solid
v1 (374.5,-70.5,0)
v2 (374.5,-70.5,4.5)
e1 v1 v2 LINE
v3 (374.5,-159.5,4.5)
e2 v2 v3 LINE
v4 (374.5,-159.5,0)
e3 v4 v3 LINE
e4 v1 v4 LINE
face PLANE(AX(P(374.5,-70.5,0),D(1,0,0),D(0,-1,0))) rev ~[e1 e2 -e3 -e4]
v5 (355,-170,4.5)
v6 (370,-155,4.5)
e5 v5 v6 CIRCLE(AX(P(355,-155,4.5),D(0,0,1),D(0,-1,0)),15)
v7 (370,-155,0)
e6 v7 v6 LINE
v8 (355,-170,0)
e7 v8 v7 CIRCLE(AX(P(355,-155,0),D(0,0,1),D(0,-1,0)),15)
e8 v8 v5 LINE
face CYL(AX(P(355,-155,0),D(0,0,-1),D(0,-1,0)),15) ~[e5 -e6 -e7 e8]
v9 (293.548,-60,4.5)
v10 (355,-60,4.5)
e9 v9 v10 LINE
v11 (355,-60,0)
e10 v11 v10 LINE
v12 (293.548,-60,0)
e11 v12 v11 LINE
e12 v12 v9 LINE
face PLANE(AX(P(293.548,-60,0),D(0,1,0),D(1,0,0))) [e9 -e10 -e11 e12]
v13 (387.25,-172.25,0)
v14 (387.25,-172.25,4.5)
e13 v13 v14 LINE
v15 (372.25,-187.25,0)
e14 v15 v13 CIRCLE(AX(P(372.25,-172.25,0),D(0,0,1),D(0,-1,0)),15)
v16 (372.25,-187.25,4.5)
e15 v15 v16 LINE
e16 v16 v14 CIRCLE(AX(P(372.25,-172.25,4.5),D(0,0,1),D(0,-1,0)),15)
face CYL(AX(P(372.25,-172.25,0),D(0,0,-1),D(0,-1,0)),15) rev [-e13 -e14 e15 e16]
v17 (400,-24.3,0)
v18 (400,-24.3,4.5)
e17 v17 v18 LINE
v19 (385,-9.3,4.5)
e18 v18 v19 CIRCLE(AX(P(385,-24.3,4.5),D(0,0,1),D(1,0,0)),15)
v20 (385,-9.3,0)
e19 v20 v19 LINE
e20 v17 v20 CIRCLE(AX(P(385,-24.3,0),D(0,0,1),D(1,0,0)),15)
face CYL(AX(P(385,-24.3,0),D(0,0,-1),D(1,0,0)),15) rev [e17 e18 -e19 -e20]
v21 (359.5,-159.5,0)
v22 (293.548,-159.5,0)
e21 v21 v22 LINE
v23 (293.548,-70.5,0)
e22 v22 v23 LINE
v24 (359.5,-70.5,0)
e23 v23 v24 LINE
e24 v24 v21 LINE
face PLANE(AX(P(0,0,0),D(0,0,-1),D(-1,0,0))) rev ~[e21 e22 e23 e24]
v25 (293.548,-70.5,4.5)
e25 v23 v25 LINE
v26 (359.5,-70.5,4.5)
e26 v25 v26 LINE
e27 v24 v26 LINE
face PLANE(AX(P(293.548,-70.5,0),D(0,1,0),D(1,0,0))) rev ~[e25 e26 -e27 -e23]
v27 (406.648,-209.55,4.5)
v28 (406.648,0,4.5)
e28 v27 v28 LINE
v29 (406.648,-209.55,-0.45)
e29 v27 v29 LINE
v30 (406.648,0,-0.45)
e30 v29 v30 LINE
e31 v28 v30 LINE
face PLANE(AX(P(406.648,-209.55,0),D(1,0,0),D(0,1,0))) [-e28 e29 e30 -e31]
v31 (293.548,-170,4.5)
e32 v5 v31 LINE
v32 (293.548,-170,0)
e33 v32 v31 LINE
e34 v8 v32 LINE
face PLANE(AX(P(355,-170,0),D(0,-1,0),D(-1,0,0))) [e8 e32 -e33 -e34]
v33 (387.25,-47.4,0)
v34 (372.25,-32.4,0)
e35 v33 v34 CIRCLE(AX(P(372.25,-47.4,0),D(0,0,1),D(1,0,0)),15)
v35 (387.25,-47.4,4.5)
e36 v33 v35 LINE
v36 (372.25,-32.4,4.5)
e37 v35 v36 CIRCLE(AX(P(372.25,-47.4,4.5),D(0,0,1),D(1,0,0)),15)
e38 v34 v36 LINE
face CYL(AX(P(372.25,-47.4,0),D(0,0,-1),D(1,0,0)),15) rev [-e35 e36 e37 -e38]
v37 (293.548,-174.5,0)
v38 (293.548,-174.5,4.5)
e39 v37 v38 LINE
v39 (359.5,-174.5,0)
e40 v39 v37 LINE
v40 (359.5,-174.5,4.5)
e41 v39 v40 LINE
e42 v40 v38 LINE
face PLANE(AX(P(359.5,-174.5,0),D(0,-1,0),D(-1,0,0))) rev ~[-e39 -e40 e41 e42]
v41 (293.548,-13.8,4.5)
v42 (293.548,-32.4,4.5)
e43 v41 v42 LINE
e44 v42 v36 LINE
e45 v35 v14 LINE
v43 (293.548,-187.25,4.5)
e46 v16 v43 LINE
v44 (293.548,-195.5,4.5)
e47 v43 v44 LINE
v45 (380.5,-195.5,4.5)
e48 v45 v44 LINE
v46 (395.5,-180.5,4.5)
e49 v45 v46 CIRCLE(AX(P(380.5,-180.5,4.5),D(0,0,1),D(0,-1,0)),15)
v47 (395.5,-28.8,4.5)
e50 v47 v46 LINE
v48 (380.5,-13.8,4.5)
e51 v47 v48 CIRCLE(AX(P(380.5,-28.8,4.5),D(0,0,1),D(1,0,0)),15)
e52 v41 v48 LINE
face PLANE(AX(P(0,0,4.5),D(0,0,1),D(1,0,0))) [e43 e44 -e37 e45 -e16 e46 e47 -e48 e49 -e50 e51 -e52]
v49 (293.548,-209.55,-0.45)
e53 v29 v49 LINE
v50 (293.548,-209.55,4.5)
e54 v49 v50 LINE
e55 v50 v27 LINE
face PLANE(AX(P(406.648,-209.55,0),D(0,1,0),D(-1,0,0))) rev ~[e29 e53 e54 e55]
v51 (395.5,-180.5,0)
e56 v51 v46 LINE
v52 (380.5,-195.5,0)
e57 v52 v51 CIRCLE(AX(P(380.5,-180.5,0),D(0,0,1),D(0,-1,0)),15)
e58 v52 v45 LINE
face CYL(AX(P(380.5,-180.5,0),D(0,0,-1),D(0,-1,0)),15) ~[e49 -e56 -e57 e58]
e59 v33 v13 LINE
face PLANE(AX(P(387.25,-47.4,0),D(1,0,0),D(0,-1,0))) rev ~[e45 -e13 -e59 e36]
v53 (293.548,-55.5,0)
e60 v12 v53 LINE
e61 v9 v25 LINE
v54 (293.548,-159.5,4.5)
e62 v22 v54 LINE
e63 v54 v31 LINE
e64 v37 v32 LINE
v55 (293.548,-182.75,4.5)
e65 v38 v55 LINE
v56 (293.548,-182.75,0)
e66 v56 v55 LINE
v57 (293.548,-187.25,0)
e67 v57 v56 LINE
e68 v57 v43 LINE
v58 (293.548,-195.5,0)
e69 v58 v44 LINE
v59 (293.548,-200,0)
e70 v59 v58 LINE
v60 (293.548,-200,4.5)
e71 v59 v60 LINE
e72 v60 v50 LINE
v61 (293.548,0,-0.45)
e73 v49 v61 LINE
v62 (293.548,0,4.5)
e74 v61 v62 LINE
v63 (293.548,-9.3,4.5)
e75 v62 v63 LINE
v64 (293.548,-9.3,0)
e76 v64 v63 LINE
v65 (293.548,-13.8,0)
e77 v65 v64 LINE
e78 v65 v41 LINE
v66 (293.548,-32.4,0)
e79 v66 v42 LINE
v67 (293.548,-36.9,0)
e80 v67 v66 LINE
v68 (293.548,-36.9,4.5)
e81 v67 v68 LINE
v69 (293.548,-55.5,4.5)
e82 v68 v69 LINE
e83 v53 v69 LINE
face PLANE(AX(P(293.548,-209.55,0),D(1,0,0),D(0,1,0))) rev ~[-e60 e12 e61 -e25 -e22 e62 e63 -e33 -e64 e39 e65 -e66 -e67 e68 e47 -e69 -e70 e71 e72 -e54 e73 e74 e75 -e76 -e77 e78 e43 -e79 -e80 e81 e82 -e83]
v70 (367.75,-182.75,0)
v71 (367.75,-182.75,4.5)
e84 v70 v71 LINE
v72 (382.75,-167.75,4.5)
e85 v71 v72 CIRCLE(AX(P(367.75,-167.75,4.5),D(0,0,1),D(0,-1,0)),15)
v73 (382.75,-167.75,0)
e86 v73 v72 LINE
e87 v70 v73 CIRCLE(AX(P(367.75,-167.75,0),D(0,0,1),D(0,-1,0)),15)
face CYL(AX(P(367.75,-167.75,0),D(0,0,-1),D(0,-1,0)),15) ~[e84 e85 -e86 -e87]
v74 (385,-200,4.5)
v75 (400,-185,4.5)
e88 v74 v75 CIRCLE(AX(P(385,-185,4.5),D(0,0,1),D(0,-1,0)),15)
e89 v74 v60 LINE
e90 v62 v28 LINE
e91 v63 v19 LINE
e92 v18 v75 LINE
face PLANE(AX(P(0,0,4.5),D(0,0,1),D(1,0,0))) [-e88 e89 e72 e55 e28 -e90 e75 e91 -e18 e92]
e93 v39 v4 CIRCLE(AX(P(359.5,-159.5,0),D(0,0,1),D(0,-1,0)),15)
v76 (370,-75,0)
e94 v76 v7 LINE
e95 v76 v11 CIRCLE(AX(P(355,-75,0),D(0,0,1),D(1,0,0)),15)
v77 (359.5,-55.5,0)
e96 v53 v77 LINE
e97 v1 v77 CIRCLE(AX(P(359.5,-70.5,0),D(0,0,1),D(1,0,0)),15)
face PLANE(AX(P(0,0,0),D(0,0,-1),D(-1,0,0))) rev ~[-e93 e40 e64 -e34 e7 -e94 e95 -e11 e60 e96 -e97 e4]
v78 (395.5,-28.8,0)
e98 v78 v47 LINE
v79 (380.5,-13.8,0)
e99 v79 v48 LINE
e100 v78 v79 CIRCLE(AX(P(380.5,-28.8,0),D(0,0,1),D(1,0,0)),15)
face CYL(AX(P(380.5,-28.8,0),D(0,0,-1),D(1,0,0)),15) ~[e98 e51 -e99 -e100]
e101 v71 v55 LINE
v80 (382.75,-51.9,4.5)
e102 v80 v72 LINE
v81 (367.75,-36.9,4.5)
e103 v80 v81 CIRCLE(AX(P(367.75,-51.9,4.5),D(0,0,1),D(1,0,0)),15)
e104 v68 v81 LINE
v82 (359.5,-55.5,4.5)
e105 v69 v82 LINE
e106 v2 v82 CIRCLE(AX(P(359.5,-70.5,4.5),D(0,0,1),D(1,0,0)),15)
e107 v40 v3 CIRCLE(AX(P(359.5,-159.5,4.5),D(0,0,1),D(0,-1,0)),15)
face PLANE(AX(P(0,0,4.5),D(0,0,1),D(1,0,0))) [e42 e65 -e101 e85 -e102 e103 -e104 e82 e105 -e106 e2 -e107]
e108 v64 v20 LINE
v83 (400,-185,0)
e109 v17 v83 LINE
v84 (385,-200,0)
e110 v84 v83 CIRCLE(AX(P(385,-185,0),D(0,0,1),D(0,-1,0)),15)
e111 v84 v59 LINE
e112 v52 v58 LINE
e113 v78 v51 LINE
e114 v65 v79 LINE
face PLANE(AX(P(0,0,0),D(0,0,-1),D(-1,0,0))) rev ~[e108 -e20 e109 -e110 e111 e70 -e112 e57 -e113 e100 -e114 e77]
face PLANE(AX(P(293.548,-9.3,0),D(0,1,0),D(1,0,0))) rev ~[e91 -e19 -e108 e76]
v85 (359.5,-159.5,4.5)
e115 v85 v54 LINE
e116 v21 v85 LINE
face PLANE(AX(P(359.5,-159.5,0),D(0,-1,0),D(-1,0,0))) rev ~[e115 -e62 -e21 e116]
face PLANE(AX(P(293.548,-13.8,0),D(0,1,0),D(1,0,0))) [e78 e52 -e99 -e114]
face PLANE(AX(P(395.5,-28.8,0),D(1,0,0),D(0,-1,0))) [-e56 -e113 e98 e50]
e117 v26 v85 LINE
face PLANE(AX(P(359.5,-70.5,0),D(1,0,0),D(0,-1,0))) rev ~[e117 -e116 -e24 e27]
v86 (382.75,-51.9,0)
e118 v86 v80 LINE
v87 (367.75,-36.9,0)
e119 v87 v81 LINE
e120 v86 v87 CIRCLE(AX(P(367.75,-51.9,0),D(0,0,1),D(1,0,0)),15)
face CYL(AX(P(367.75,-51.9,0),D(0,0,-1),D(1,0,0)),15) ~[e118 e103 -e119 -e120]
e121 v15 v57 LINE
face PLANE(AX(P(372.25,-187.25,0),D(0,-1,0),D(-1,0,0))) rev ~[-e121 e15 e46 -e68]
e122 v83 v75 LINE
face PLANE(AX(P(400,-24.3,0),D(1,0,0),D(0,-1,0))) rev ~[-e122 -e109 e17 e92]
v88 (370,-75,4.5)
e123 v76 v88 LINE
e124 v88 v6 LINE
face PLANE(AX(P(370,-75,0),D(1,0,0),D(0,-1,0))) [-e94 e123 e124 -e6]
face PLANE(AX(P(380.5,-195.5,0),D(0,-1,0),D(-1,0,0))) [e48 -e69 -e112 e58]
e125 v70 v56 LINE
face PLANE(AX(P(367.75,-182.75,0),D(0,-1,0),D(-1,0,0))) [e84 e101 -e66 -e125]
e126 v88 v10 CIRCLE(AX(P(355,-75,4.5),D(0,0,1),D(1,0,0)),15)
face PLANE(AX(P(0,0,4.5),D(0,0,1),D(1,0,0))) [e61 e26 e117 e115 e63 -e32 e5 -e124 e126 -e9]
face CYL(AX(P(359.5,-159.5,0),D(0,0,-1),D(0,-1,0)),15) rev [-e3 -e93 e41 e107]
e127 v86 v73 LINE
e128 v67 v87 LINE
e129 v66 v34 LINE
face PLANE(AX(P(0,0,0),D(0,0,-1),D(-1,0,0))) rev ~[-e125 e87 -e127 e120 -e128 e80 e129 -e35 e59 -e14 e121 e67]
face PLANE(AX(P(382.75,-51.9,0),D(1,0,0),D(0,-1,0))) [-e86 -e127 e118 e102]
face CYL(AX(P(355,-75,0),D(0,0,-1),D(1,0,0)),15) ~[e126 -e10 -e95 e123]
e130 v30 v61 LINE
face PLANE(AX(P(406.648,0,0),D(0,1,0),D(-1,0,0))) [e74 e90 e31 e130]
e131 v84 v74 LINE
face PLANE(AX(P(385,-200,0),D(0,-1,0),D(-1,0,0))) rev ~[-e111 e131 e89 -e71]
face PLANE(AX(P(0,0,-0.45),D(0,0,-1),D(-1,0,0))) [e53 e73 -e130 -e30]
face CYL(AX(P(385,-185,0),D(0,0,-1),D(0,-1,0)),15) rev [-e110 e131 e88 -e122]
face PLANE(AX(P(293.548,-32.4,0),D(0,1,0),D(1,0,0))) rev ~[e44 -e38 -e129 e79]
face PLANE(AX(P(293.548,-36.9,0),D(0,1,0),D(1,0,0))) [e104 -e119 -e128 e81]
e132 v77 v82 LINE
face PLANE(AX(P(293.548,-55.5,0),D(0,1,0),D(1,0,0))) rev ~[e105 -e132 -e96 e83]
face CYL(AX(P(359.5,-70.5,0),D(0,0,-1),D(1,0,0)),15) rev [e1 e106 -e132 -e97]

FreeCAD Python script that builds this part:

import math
import FreeCAD as App
import Part
import Sketcher

V = App.Vector
Q = App.Units.Quantity


def add_polygon(sketch, points):
    """Adds a closed chain of lines whose ends are joined by coincident constraints."""
    first, n = sketch.GeometryCount, len(points)
    for a, b in zip(points, points[1:] + points[:1]):
        sketch.addGeometry(Part.LineSegment(App.Vector(*a, 0), App.Vector(*b, 0)), False)
    for i in range(n):
        sketch.addConstraint(Sketcher.Constraint("Coincident", first + i, 2, first + (i + 1) % n, 1))

doc = App.newDocument("Part")
body = doc.addObject("PartDesign::Body", "Body")
body.AllowCompound = True

sketch1 = body.newObject("Sketcher::SketchObject", "Sketch")
sketch1.AttachmentSupport = (doc.getObject("XY_Plane"), [""])
sketch1.MapMode = "FlatFace"
sketch1.addGeometry([
    Part.LineSegment(V(294, 0, 0), V(294, -9, 0)),
    Part.LineSegment(V(294, -9, 0), V(385, -9, 0)),
    Part.ArcOfCircle(Part.Circle(V(385, -24, 0), V(0, 0, 1), 15), math.radians(0), math.radians(90)),
    Part.LineSegment(V(400, -24, 0), V(400, -185, 0)),
    Part.ArcOfCircle(Part.Circle(V(385, -185, 0), V(0, 0, 1), 15), math.radians(-90), math.radians(0)),
    Part.LineSegment(V(385, -200, 0), V(294, -200, 0)),
    Part.LineSegment(V(294, -200, 0), V(294, -210, 0)),
    Part.LineSegment(V(294, -210, 0), V(407, -210, 0)),
    Part.LineSegment(V(407, -210, 0), V(407, 0, 0)),
    Part.LineSegment(V(407, 0, 0), V(294, 0, 0)),
    Part.LineSegment(V(380, -14, 0), V(294, -14, 0)),
    Part.LineSegment(V(294, -14, 0), V(294, -32, 0)),
    Part.LineSegment(V(294, -32, 0), V(372, -32, 0)),
    Part.ArcOfCircle(Part.Circle(V(372, -47, 0), V(0, 0, 1), 15), math.radians(0), math.radians(90)),
    Part.LineSegment(V(387, -47, 0), V(387, -172, 0)),
    Part.ArcOfCircle(Part.Circle(V(372, -172, 0), V(0, 0, 1), 15), math.radians(-90), math.radians(0)),
    Part.LineSegment(V(372, -187, 0), V(294, -187, 0)),
    Part.LineSegment(V(294, -187, 0), V(294, -196, 0)),
    Part.LineSegment(V(294, -196, 0), V(380, -196, 0)),
    Part.ArcOfCircle(Part.Circle(V(380, -180, 0), V(0, 0, 1), 15), math.radians(-90), math.radians(0)),
    Part.LineSegment(V(396, -180, 0), V(396, -29, 0)),
    Part.ArcOfCircle(Part.Circle(V(380, -29, 0), V(0, 0, 1), 15), math.radians(0), math.radians(90)),
    Part.LineSegment(V(368, -37, 0), V(294, -37, 0)),
    Part.LineSegment(V(294, -37, 0), V(294, -56, 0)),
    Part.LineSegment(V(294, -56, 0), V(360, -56, 0)),
    Part.ArcOfCircle(Part.Circle(V(360, -70, 0), V(0, 0, 1), 15), math.radians(0), math.radians(90)),
    Part.LineSegment(V(374, -70, 0), V(374, -160, 0)),
    Part.ArcOfCircle(Part.Circle(V(360, -160, 0), V(0, 0, 1), 15), math.radians(-90), math.radians(0)),
    Part.LineSegment(V(360, -174, 0), V(294, -174, 0)),
    Part.LineSegment(V(294, -174, 0), V(294, -183, 0)),
    Part.LineSegment(V(294, -183, 0), V(368, -183, 0)),
    Part.ArcOfCircle(Part.Circle(V(368, -168, 0), V(0, 0, 1), 15), math.radians(-90), math.radians(0)),
    Part.LineSegment(V(383, -168, 0), V(383, -52, 0)),
    Part.ArcOfCircle(Part.Circle(V(368, -52, 0), V(0, 0, 1), 15), math.radians(0), math.radians(90)),
    Part.LineSegment(V(355, -60, 0), V(294, -60, 0)),
    Part.LineSegment(V(294, -60, 0), V(294, -70, 0)),
    Part.LineSegment(V(294, -70, 0), V(360, -70, 0)),
    Part.LineSegment(V(360, -70, 0), V(360, -160, 0)),
    Part.LineSegment(V(360, -160, 0), V(294, -160, 0)),
    Part.LineSegment(V(294, -160, 0), V(294, -170, 0)),
    Part.LineSegment(V(294, -170, 0), V(355, -170, 0)),
    Part.ArcOfCircle(Part.Circle(V(355, -155, 0), V(0, 0, 1), 15), math.radians(-90), math.radians(0)),
    Part.LineSegment(V(370, -155, 0), V(370, -75, 0)),
    Part.ArcOfCircle(Part.Circle(V(355, -75, 0), V(0, 0, 1), 15), math.radians(0), math.radians(90)),
], False)
sketch1.addConstraint([
    Sketcher.Constraint("Coincident", 0, 2, 1, 1),
    Sketcher.Constraint("Tangent", 1, 2, 2, 2),
    Sketcher.Constraint("Tangent", 2, 1, 3, 1),
    Sketcher.Constraint("Tangent", 3, 2, 4, 2),
    Sketcher.Constraint("Tangent", 4, 1, 5, 1),
    Sketcher.Constraint("Coincident", 5, 2, 6, 1),
    Sketcher.Constraint("Coincident", 6, 2, 7, 1),
    Sketcher.Constraint("Coincident", 7, 2, 8, 1),
    Sketcher.Constraint("Coincident", 8, 2, 9, 1),
    Sketcher.Constraint("Coincident", 9, 2, 0, 1),
    Sketcher.Constraint("Coincident", 10, 2, 11, 1),
    Sketcher.Constraint("Coincident", 11, 2, 12, 1),
    Sketcher.Constraint("Tangent", 12, 2, 13, 2),
    Sketcher.Constraint("Tangent", 13, 1, 14, 1),
    Sketcher.Constraint("Tangent", 14, 2, 15, 2),
    Sketcher.Constraint("Tangent", 15, 1, 16, 1),
    Sketcher.Constraint("Coincident", 16, 2, 17, 1),
    Sketcher.Constraint("Coincident", 17, 2, 18, 1),
    Sketcher.Constraint("Tangent", 18, 2, 19, 1),
    Sketcher.Constraint("Tangent", 19, 2, 20, 1),
    Sketcher.Constraint("Tangent", 20, 2, 21, 1),
    Sketcher.Constraint("Tangent", 21, 2, 10, 1),
    Sketcher.Constraint("Coincident", 22, 2, 23, 1),
    Sketcher.Constraint("Coincident", 23, 2, 24, 1),
    Sketcher.Constraint("Tangent", 24, 2, 25, 2),
    Sketcher.Constraint("Tangent", 25, 1, 26, 1),
    Sketcher.Constraint("Tangent", 26, 2, 27, 2),
    Sketcher.Constraint("Tangent", 27, 1, 28, 1),
    Sketcher.Constraint("Coincident", 28, 2, 29, 1),
    Sketcher.Constraint("Coincident", 29, 2, 30, 1),
    Sketcher.Constraint("Tangent", 30, 2, 31, 1),
    Sketcher.Constraint("Tangent", 31, 2, 32, 1),
    Sketcher.Constraint("Tangent", 32, 2, 33, 1),
    Sketcher.Constraint("Tangent", 33, 2, 22, 1),
    Sketcher.Constraint("Coincident", 34, 2, 35, 1),
    Sketcher.Constraint("Coincident", 35, 2, 36, 1),
    Sketcher.Constraint("Coincident", 36, 2, 37, 1),
    Sketcher.Constraint("Coincident", 37, 2, 38, 1),
    Sketcher.Constraint("Coincident", 38, 2, 39, 1),
    Sketcher.Constraint("Coincident", 39, 2, 40, 1),
    Sketcher.Constraint("Tangent", 40, 2, 41, 1),
    Sketcher.Constraint("Tangent", 41, 2, 42, 1),
    Sketcher.Constraint("Tangent", 42, 2, 43, 1),
    Sketcher.Constraint("Tangent", 43, 2, 34, 1),
    Sketcher.Constraint("Vertical", 0),
    Sketcher.Constraint("Horizontal", 1),
    Sketcher.Constraint("Vertical", 3),
    Sketcher.Constraint("Horizontal", 5),
    Sketcher.Constraint("Vertical", 6),
    Sketcher.Constraint("Horizontal", 7),
    Sketcher.Constraint("Vertical", 8),
    Sketcher.Constraint("Horizontal", 9),
    Sketcher.Constraint("Horizontal", 10),
    Sketcher.Constraint("Vertical", 11),
    Sketcher.Constraint("Horizontal", 12),
    Sketcher.Constraint("Vertical", 14),
    Sketcher.Constraint("Horizontal", 16),
    Sketcher.Constraint("Vertical", 17),
    Sketcher.Constraint("Horizontal", 18),
    Sketcher.Constraint("Vertical", 20),
    Sketcher.Constraint("Horizontal", 22),
    Sketcher.Constraint("Vertical", 23),
    Sketcher.Constraint("Horizontal", 24),
    Sketcher.Constraint("Vertical", 26),
    Sketcher.Constraint("Horizontal", 28),
    Sketcher.Constraint("Vertical", 29),
    Sketcher.Constraint("Horizontal", 30),
    Sketcher.Constraint("Vertical", 32),
    Sketcher.Constraint("Horizontal", 34),
    Sketcher.Constraint("Vertical", 35),
    Sketcher.Constraint("Horizontal", 36),
    Sketcher.Constraint("Vertical", 37),
    Sketcher.Constraint("Horizontal", 38),
    Sketcher.Constraint("Vertical", 39),
    Sketcher.Constraint("Horizontal", 40),
    Sketcher.Constraint("Vertical", 42),
    Sketcher.Constraint("Coincident", 36, 2, 25, 3),
    Sketcher.Constraint("Coincident", 37, 2, 27, 3),
    Sketcher.Constraint("Equal", 2, 4),
    Sketcher.Constraint("Equal", 4, 13),
    Sketcher.Constraint("Equal", 13, 15),
    Sketcher.Constraint("Equal", 15, 19),
    Sketcher.Constraint("Equal", 19, 21),
    Sketcher.Constraint("Equal", 21, 25),
    Sketcher.Constraint("Equal", 27, 31),
    Sketcher.Constraint("Equal", 31, 33),
    Sketcher.Constraint("Equal", 33, 41),
    Sketcher.Constraint("Equal", 41, 43),
    Sketcher.Constraint("PointOnObject", 8, 2, -1),
    Sketcher.Constraint("Vertical", 0, 2, 5, 2),
    Sketcher.Constraint("Vertical", 9, 2, 10, 2),
    Sketcher.Constraint("Vertical", 11, 2, 16, 2),
    Sketcher.Constraint("Vertical", 17, 2, 22, 2),
    Sketcher.Constraint("Vertical", 23, 2, 28, 2),
    Sketcher.Constraint("Vertical", 29, 2, 34, 2),
    Sketcher.Constraint("Vertical", 35, 2, 38, 2),
    Sketcher.Constraint("Equal", 11, 23),
    Sketcher.Constraint("Equal", 17, 29),
    Sketcher.Constraint("Equal", 35, 39),
    Sketcher.Constraint("Radius", 2, Q("15 mm")),
    Sketcher.Constraint("DistanceX", 7, 1, 7, 2, Q("113.1 mm")),
    Sketcher.Constraint("DistanceY", 0, 2, 0, 1, Q("9.3 mm")),
    Sketcher.Constraint("DistanceY", 11, 2, 11, 1, Q("18.6 mm")),
    Sketcher.Constraint("DistanceX", -1, 1, 2, 1, Q("400 mm")),
    Sketcher.Constraint("DistanceY", 4, 1, -1, 1, Q("200 mm")),
    Sketcher.Constraint("DistanceY", 8, 1, 8, 2, Q("209.55 mm")),
    Sketcher.Constraint("DistanceY", 17, 2, 17, 1, Q("8.25 mm")),
    Sketcher.Constraint("DistanceX", 19, 3, 4, 3, Q("4.5 mm")),
    Sketcher.Constraint("DistanceY", 4, 3, 19, 3, Q("4.5 mm")),
    Sketcher.Constraint("DistanceY", 21, 3, 2, 3, Q("4.5 mm")),
    Sketcher.Constraint("DistanceX", 31, 3, 15, 3, Q("4.5 mm")),
    Sketcher.Constraint("DistanceY", 15, 3, 31, 3, Q("4.5 mm")),
    Sketcher.Constraint("DistanceY", 33, 3, 13, 3, Q("4.5 mm")),
    Sketcher.Constraint("DistanceX", 41, 3, 27, 3, Q("4.5 mm")),
    Sketcher.Constraint("DistanceY", 27, 3, 41, 3, Q("4.5 mm")),
    Sketcher.Constraint("DistanceX", 15, 3, 19, 3, Q("8.25 mm")),
    Sketcher.Constraint("DistanceX", 27, 3, 31, 3, Q("8.25 mm")),
    Sketcher.Constraint("DistanceX", 1, 1, 1, 2, Q("91.452 mm")),
])
pad1 = body.newObject("PartDesign::Pad", "Pad")
pad1.Profile = sketch1
pad1.Length = 4.5

sketch2 = body.newObject("Sketcher::SketchObject", "Sketch001")
sketch2.AttachmentSupport = (doc.getObject("XY_Plane"), [""])
sketch2.MapMode = "FlatFace"
add_polygon(sketch2, [(294, 0), (407, 0), (407, -210), (294, -210)])
sketch2.addConstraint([
    Sketcher.Constraint("Horizontal", 0),
    Sketcher.Constraint("Vertical", 1),
    Sketcher.Constraint("Horizontal", 2),
    Sketcher.Constraint("Vertical", 3),
    Sketcher.Constraint("PointOnObject", 0, 2, -1),
    Sketcher.Constraint("DistanceX", 0, 1, 0, 2, Q("113.1 mm")),
    Sketcher.Constraint("DistanceY", 1, 2, 1, 1, Q("209.55 mm")),
    Sketcher.Constraint("DistanceX", -1, 1, 0, 2, Q("406.648 mm")),
])
pad2 = body.newObject("PartDesign::Pad", "Pad001")
pad2.Profile = sketch2
pad2.Length = 0.45
pad2.Reversed = True

doc.recompute()
